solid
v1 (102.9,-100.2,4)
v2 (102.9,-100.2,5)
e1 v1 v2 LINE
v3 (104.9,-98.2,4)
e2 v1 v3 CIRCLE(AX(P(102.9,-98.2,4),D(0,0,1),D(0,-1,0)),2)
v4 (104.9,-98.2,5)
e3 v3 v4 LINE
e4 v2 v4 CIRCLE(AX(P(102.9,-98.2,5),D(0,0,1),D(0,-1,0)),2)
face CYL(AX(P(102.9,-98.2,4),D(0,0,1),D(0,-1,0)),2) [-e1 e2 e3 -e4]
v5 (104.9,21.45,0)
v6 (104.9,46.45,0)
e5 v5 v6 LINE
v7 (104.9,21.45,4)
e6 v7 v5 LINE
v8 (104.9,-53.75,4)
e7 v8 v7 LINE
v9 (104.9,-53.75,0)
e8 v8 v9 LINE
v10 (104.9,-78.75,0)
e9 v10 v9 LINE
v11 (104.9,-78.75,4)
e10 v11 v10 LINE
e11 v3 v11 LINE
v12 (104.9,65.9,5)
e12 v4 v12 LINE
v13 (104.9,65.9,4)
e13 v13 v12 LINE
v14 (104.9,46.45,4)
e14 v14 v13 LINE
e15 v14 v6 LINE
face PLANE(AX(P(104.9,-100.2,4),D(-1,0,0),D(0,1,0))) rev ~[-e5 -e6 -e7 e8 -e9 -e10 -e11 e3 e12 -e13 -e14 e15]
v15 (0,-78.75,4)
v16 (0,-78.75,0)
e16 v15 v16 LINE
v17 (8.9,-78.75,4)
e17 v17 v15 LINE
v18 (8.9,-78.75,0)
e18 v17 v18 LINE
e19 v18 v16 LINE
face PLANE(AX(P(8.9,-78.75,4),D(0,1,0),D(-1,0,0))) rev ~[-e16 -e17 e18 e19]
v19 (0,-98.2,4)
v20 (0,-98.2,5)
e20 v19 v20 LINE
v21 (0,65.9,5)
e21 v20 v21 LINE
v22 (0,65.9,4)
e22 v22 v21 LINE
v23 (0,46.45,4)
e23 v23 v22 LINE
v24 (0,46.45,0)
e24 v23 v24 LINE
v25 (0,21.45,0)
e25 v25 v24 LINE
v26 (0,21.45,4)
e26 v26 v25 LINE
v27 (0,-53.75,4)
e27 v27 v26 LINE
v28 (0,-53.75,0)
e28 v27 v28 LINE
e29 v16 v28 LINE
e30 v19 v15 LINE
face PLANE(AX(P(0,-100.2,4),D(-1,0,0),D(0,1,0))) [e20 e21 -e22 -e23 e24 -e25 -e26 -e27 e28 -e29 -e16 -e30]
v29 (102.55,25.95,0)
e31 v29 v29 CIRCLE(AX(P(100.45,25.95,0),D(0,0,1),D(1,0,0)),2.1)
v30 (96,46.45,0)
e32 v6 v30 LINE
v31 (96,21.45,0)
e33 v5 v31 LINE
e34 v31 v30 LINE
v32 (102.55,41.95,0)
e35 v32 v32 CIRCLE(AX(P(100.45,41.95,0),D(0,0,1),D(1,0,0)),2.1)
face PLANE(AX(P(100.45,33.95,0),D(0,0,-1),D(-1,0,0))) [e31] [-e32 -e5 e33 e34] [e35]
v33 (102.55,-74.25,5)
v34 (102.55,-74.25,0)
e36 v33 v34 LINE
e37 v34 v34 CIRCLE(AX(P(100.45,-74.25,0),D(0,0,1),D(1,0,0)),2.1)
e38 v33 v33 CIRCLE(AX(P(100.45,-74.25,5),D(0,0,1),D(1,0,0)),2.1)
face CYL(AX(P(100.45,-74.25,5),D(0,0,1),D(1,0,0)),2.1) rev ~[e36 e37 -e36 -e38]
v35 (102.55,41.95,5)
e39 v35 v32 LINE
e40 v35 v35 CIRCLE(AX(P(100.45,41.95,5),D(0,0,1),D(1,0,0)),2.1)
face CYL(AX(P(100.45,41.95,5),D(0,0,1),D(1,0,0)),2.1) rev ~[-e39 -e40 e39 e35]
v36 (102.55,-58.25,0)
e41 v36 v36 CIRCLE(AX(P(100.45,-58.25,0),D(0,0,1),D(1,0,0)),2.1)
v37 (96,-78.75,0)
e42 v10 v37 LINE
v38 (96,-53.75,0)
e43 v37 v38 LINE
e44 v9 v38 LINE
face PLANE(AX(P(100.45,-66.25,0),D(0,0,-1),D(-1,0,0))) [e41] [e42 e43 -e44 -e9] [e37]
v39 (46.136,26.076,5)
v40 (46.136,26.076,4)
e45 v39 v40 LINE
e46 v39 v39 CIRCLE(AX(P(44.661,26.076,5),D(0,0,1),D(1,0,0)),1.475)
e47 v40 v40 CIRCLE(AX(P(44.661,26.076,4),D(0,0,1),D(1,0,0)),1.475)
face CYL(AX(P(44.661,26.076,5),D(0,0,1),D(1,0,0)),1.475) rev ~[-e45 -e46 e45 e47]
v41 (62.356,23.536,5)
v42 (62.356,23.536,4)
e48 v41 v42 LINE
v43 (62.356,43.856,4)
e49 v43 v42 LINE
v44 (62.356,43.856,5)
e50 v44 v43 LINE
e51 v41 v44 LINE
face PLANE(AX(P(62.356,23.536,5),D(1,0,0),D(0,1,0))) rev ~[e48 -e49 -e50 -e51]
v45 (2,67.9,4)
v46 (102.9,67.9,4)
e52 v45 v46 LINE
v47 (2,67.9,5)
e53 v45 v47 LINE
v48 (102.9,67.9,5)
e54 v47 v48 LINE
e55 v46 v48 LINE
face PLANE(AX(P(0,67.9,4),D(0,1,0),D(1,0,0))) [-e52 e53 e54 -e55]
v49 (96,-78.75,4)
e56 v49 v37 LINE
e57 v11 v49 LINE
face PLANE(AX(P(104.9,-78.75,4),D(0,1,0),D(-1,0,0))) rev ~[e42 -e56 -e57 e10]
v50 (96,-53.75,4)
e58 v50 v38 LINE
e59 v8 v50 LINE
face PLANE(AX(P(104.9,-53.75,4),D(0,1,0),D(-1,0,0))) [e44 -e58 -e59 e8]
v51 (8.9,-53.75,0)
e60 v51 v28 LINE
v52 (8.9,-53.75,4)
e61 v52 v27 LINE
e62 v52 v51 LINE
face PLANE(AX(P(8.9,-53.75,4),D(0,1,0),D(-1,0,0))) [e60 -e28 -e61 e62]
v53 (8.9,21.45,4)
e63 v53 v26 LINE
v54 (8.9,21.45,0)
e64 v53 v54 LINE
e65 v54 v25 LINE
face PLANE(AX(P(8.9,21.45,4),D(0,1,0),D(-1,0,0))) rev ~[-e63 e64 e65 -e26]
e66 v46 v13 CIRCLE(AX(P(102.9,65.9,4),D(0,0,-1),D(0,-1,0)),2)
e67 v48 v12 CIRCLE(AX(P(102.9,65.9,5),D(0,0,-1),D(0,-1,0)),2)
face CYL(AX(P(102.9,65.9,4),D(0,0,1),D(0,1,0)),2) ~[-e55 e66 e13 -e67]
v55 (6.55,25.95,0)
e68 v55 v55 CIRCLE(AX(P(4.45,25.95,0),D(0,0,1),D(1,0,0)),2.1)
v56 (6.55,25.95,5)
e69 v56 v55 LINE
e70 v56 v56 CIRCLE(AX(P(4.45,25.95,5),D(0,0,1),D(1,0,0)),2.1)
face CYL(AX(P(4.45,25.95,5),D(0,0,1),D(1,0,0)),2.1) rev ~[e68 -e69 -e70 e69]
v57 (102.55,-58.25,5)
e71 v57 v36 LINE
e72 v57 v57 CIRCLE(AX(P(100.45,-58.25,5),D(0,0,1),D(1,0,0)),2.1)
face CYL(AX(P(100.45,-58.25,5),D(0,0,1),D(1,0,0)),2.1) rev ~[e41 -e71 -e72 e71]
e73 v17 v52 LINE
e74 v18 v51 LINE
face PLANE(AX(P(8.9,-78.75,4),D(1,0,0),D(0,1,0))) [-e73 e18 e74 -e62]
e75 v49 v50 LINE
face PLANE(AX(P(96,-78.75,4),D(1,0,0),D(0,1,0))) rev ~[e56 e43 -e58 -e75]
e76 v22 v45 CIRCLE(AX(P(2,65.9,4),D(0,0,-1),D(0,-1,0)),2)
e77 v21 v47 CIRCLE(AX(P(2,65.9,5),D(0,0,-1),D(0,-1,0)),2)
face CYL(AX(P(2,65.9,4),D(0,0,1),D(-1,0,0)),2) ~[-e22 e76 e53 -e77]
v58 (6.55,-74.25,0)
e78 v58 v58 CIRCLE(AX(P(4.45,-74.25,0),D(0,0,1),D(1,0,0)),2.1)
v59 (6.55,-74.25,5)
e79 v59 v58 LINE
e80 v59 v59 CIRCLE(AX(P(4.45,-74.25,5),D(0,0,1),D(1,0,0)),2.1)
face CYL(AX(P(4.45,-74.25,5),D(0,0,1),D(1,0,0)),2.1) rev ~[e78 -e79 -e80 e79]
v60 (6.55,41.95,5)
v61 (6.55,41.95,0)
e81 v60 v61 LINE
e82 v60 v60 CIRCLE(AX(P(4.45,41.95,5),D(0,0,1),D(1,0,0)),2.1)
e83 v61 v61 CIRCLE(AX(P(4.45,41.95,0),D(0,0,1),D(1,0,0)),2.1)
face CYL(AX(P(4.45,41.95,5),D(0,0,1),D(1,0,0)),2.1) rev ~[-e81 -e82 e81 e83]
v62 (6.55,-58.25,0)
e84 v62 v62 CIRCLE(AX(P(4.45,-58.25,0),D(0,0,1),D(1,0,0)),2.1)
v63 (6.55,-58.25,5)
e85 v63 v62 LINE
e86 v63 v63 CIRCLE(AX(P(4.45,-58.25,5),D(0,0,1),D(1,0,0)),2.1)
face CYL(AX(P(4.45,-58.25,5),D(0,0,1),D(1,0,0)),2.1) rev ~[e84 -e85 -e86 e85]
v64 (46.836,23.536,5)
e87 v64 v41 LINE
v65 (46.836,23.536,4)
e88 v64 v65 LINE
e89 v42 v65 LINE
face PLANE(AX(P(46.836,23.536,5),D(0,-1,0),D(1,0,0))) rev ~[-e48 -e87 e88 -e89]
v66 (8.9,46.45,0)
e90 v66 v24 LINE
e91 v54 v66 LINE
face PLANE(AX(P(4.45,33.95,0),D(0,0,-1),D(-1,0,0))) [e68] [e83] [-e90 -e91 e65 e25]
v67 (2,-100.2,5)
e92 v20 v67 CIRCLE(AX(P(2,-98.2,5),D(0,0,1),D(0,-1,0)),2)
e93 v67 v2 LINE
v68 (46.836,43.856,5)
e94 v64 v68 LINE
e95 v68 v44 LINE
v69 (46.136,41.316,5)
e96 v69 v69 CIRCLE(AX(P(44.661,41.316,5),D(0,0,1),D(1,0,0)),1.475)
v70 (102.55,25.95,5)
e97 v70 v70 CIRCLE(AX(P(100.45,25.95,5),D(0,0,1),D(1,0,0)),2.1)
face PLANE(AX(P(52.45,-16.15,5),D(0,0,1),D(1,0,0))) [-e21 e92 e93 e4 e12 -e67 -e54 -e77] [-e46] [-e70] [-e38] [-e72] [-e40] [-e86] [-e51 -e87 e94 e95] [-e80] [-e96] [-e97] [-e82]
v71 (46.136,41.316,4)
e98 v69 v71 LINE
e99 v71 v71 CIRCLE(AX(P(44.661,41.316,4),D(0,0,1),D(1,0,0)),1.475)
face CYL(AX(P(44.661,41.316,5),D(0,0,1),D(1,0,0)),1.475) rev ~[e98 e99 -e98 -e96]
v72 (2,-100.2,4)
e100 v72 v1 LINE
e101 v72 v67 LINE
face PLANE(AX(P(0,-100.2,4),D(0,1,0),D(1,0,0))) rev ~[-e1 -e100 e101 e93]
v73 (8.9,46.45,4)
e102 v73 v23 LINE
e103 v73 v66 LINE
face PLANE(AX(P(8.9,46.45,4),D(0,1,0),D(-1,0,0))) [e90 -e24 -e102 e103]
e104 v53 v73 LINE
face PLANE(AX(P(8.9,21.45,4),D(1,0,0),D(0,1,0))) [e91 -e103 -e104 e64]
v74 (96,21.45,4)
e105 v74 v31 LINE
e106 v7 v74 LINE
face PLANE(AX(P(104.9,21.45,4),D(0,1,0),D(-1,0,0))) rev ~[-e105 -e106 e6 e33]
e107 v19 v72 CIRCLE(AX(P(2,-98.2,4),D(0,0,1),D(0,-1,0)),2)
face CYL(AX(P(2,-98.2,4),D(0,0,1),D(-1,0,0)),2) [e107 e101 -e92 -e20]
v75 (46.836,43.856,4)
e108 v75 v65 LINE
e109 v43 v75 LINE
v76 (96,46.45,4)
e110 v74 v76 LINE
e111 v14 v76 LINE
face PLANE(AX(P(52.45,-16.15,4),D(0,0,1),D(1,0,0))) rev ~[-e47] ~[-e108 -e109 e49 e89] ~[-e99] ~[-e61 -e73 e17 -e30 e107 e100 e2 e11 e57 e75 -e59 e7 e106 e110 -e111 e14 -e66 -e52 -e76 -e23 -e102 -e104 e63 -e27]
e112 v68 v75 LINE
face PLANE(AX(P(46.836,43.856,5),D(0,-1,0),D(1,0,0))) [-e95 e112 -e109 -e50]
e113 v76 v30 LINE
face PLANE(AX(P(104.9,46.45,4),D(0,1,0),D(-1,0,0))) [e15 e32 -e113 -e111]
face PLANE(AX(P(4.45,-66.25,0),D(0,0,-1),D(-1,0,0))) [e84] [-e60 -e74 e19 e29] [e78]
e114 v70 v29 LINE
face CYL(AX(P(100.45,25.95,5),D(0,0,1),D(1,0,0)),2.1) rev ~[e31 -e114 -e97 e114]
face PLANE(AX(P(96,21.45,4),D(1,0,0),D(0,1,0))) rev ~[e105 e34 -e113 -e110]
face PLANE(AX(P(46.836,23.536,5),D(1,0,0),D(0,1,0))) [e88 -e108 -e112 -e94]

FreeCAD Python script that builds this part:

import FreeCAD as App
import Part
import Sketcher

V = App.Vector


def edges_at(feature, points):
    """Names of the edges that pass closest to the given points."""
    edges = feature.Shape.Edges
    near = lambda p: min(range(len(edges)), key=lambda i: edges[i].distToShape(Part.Vertex(*p))[0])
    return sorted({f"Edge{near(p) + 1}" for p in points})

doc = App.newDocument("Part")
body = doc.addObject("PartDesign::Body", "Body")

# Sketch on XY plane
sketch1 = doc.addObject("Sketcher::SketchObject", "Sketch")
body.addObject(sketch1)
sketch1.AttachmentSupport = (doc.XY_Plane, [""])
sketch1.MapMode = "FlatFace"
sketch1.AttachmentOffset = App.Placement(V(0, 0, 4), App.Rotation())
sketch1.addGeometry(Part.LineSegment(V(0, 68, 0), V(0, -100, 0)), False)
sketch1.addGeometry(Part.LineSegment(V(0, -100, 0), V(105, -100, 0)), False)
sketch1.addGeometry(Part.LineSegment(V(105, -100, 0), V(105, 68, 0)), False)
sketch1.addGeometry(Part.LineSegment(V(105, 68, 0), V(0, 68, 0)), False)
sketch1.addConstraint(Sketcher.Constraint("Coincident", 0, 2, 1, 1))
sketch1.addConstraint(Sketcher.Constraint("Coincident", 1, 2, 2, 1))
sketch1.addConstraint(Sketcher.Constraint("Coincident", 2, 2, 3, 1))
sketch1.addConstraint(Sketcher.Constraint("Coincident", 3, 2, 0, 1))
sketch1.addConstraint(Sketcher.Constraint("Vertical", 0))
sketch1.addConstraint(Sketcher.Constraint("Horizontal", 1))
sketch1.addConstraint(Sketcher.Constraint("Vertical", 2))
sketch1.addConstraint(Sketcher.Constraint("Horizontal", 3))
sketch1.addConstraint(Sketcher.Constraint("PointOnObject", 0, 2, -2))
sketch1.addConstraint(Sketcher.Constraint("DistanceX", 1, 1, 1, 2, 104.9))
sketch1.addConstraint(Sketcher.Constraint("DistanceY", 0, 2, 0, 1, 168.1))
sketch1.addConstraint(Sketcher.Constraint("DistanceY", 0, 2, -1, 1, 100.2))
pad1 = doc.addObject("PartDesign::Pad", "Pad")
body.addObject(pad1)
pad1.Profile = sketch1
pad1.Length = 1

# Sketch on XY plane
sketch2 = doc.addObject("Sketcher::SketchObject", "Sketch001")
body.addObject(sketch2)
sketch2.AttachmentSupport = (doc.XY_Plane, [""])
sketch2.MapMode = "FlatFace"
sketch2.AttachmentOffset = App.Placement(V(0, 0, 4), App.Rotation())
sketch2.addGeometry(Part.LineSegment(V(105, 46, 0), V(105, 21, 0)), False)
sketch2.addGeometry(Part.LineSegment(V(105, 21, 0), V(96, 21, 0)), False)
sketch2.addGeometry(Part.LineSegment(V(96, 21, 0), V(96, 46, 0)), False)
sketch2.addGeometry(Part.LineSegment(V(96, 46, 0), V(105, 46, 0)), False)
sketch2.addGeometry(Part.LineSegment(V(9, 46, 0), V(9, 21, 0)), False)
sketch2.addGeometry(Part.LineSegment(V(9, 21, 0), V(0, 21, 0)), False)
sketch2.addGeometry(Part.LineSegment(V(0, 21, 0), V(0, 46, 0)), False)
sketch2.addGeometry(Part.LineSegment(V(0, 46, 0), V(9, 46, 0)), False)
sketch2.addGeometry(Part.LineSegment(V(9, -54, 0), V(9, -79, 0)), False)
sketch2.addGeometry(Part.LineSegment(V(9, -79, 0), V(0, -79, 0)), False)
sketch2.addGeometry(Part.LineSegment(V(0, -79, 0), V(0, -54, 0)), False)
sketch2.addGeometry(Part.LineSegment(V(0, -54, 0), V(9, -54, 0)), False)
sketch2.addGeometry(Part.LineSegment(V(105, -54, 0), V(105, -79, 0)), False)
sketch2.addGeometry(Part.LineSegment(V(105, -79, 0), V(96, -79, 0)), False)
sketch2.addGeometry(Part.LineSegment(V(96, -79, 0), V(96, -54, 0)), False)
sketch2.addGeometry(Part.LineSegment(V(96, -54, 0), V(105, -54, 0)), False)
sketch2.addConstraint(Sketcher.Constraint("Coincident", 0, 2, 1, 1))
sketch2.addConstraint(Sketcher.Constraint("Coincident", 1, 2, 2, 1))
sketch2.addConstraint(Sketcher.Constraint("Coincident", 2, 2, 3, 1))
sketch2.addConstraint(Sketcher.Constraint("Coincident", 3, 2, 0, 1))
sketch2.addConstraint(Sketcher.Constraint("Coincident", 4, 2, 5, 1))
sketch2.addConstraint(Sketcher.Constraint("Coincident", 5, 2, 6, 1))
sketch2.addConstraint(Sketcher.Constraint("Coincident", 6, 2, 7, 1))
sketch2.addConstraint(Sketcher.Constraint("Coincident", 7, 2, 4, 1))
sketch2.addConstraint(Sketcher.Constraint("Coincident", 8, 2, 9, 1))
sketch2.addConstraint(Sketcher.Constraint("Coincident", 9, 2, 10, 1))
sketch2.addConstraint(Sketcher.Constraint("Coincident", 10, 2, 11, 1))
sketch2.addConstraint(Sketcher.Constraint("Coincident", 11, 2, 8, 1))
sketch2.addConstraint(Sketcher.Constraint("Coincident", 12, 2, 13, 1))
sketch2.addConstraint(Sketcher.Constraint("Coincident", 13, 2, 14, 1))
sketch2.addConstraint(Sketcher.Constraint("Coincident", 14, 2, 15, 1))
sketch2.addConstraint(Sketcher.Constraint("Coincident", 15, 2, 12, 1))
sketch2.addConstraint(Sketcher.Constraint("Vertical", 0))
sketch2.addConstraint(Sketcher.Constraint("Horizontal", 1))
sketch2.addConstraint(Sketcher.Constraint("Vertical", 2))
sketch2.addConstraint(Sketcher.Constraint("Horizontal", 3))
sketch2.addConstraint(Sketcher.Constraint("Vertical", 4))
sketch2.addConstraint(Sketcher.Constraint("Horizontal", 5))
sketch2.addConstraint(Sketcher.Constraint("Vertical", 6))
sketch2.addConstraint(Sketcher.Constraint("Horizontal", 7))
sketch2.addConstraint(Sketcher.Constraint("Vertical", 8))
sketch2.addConstraint(Sketcher.Constraint("Horizontal", 9))
sketch2.addConstraint(Sketcher.Constraint("Vertical", 10))
sketch2.addConstraint(Sketcher.Constraint("Horizontal", 11))
sketch2.addConstraint(Sketcher.Constraint("Vertical", 12))
sketch2.addConstraint(Sketcher.Constraint("Horizontal", 13))
sketch2.addConstraint(Sketcher.Constraint("Vertical", 14))
sketch2.addConstraint(Sketcher.Constraint("Horizontal", 15))
sketch2.addConstraint(Sketcher.Constraint("PointOnObject", 5, 2, -2))
sketch2.addConstraint(Sketcher.Constraint("PointOnObject", 9, 2, -2))
sketch2.addConstraint(Sketcher.Constraint("Horizontal", 1, 2, 4, 2))
sketch2.addConstraint(Sketcher.Constraint("Horizontal", 3, 2, 6, 2))
sketch2.addConstraint(Sketcher.Constraint("Horizontal", 9, 2, 12, 2))
sketch2.addConstraint(Sketcher.Constraint("Horizontal", 11, 2, 14, 2))
sketch2.addConstraint(Sketcher.Constraint("Vertical", 7, 2, 8, 2))
sketch2.addConstraint(Sketcher.Constraint("Vertical", 3, 2, 12, 2))
sketch2.addConstraint(Sketcher.Constraint("Vertical", 2, 2, 13, 2))
sketch2.addConstraint(Sketcher.Constraint("Equal", 3, 5))
sketch2.addConstraint(Sketcher.Constraint("Equal", 6, 8))
sketch2.addConstraint(Sketcher.Constraint("DistanceY", 0, 2, 0, 1, 25.0))
sketch2.addConstraint(Sketcher.Constraint("DistanceX", 1, 2, 1, 1, 8.9))
sketch2.addConstraint(Sketcher.Constraint("DistanceX", -1, 1, 1, 2, 96.0))
sketch2.addConstraint(Sketcher.Constraint("DistanceY", 8, 2, 4, 2, 100.2))
sketch2.addConstraint(Sketcher.Constraint("DistanceY", -1, 1, 0, 2, 21.45))
pad2 = doc.addObject("PartDesign::Pad", "Pad001")
body.addObject(pad2)
pad2.Profile = sketch2
pad2.Length = 4
pad2.Reversed = True

# Sketch on XY plane
sketch3 = doc.addObject("Sketcher::SketchObject", "Sketch002")
body.addObject(sketch3)
sketch3.AttachmentSupport = (doc.XY_Plane, [""])
sketch3.MapMode = "FlatFace"
sketch3.AttachmentOffset = App.Placement(V(0, 0, 5), App.Rotation())
sketch3.addGeometry(Part.Circle(V(100.5, -74.2, 0), V(0, 0, 1), 2.1), False)
sketch3.addGeometry(Part.Circle(V(100.5, -58.2, 0), V(0, 0, 1), 2.1), False)
sketch3.addGeometry(Part.Circle(V(4.5, -74.2, 0), V(0, 0, 1), 2.1), False)
sketch3.addGeometry(Part.Circle(V(4.5, -58.2, 0), V(0, 0, 1), 2.1), False)
sketch3.addGeometry(Part.Circle(V(4.5, 25.9, 0), V(0, 0, 1), 2.1), False)
sketch3.addGeometry(Part.Circle(V(4.5, 42, 0), V(0, 0, 1), 2.1), False)
sketch3.addGeometry(Part.Circle(V(100.5, 25.9, 0), V(0, 0, 1), 2.1), False)
sketch3.addGeometry(Part.Circle(V(100.5, 42, 0), V(0, 0, 1), 2.1), False)
sketch3.addConstraint(Sketcher.Constraint("Equal", 0, 1))
sketch3.addConstraint(Sketcher.Constraint("Equal", 1, 2))
sketch3.addConstraint(Sketcher.Constraint("Equal", 2, 3))
sketch3.addConstraint(Sketcher.Constraint("Equal", 3, 4))
sketch3.addConstraint(Sketcher.Constraint("Equal", 4, 5))
sketch3.addConstraint(Sketcher.Constraint("Equal", 5, 6))
sketch3.addConstraint(Sketcher.Constraint("Equal", 6, 7))
sketch3.addConstraint(Sketcher.Constraint("Horizontal", 0, 3, 2, 3))
sketch3.addConstraint(Sketcher.Constraint("Horizontal", 1, 3, 3, 3))
sketch3.addConstraint(Sketcher.Constraint("Horizontal", 4, 3, 6, 3))
sketch3.addConstraint(Sketcher.Constraint("Horizontal", 5, 3, 7, 3))
sketch3.addConstraint(Sketcher.Constraint("Vertical", 0, 3, 1, 3))
sketch3.addConstraint(Sketcher.Constraint("Vertical", 2, 3, 3, 3))
sketch3.addConstraint(Sketcher.Constraint("Vertical", 3, 3, 4, 3))
sketch3.addConstraint(Sketcher.Constraint("Vertical", 4, 3, 5, 3))
sketch3.addConstraint(Sketcher.Constraint("Vertical", 1, 3, 6, 3))
sketch3.addConstraint(Sketcher.Constraint("Vertical", 6, 3, 7, 3))
sketch3.addConstraint(Sketcher.Constraint("Diameter", 0, 4.2))
sketch3.addConstraint(Sketcher.Constraint("DistanceY", 0, 3, 1, 3, 16.0))
sketch3.addConstraint(Sketcher.Constraint("DistanceX", 2, 3, 0, 3, 96.0))
sketch3.addConstraint(Sketcher.Constraint("DistanceY", 4, 3, 5, 3, 16.0))
sketch3.addConstraint(Sketcher.Constraint("DistanceY", 3, 3, 4, 3, 84.2))
sketch3.addConstraint(Sketcher.Constraint("DistanceX", -1, 1, 0, 3, 100.45))
sketch3.addConstraint(Sketcher.Constraint("DistanceY", 0, 3, -1, 1, 74.25))
pocket1 = doc.addObject("PartDesign::Pocket", "Pocket")
body.addObject(pocket1)
pocket1.Profile = sketch3
pocket1.Type = "ThroughAll"

# Sketch on XY plane
sketch4 = doc.addObject("Sketcher::SketchObject", "Sketch003")
body.addObject(sketch4)
sketch4.AttachmentSupport = (doc.XY_Plane, [""])
sketch4.MapMode = "FlatFace"
sketch4.AttachmentOffset = App.Placement(V(0, 0, 5), App.Rotation())
sketch4.addGeometry(Part.Circle(V(44.7, 26.1, 0), V(0, 0, 1), 1.5), False)
sketch4.addConstraint(Sketcher.Constraint("Diameter", 0, 2.95))
sketch4.addConstraint(Sketcher.Constraint("DistanceX", -1, 1, 0, 3, 44.661))
sketch4.addConstraint(Sketcher.Constraint("DistanceY", -1, 1, 0, 3, 26.076))
pocket2 = doc.addObject("PartDesign::Pocket", "Pocket001")
body.addObject(pocket2)
pocket2.Profile = sketch4
pocket2.Type = "UpToFirst"

# Sketch on XY plane
sketch5 = doc.addObject("Sketcher::SketchObject", "Sketch004")
body.addObject(sketch5)
sketch5.AttachmentSupport = (doc.XY_Plane, [""])
sketch5.MapMode = "FlatFace"
sketch5.AttachmentOffset = App.Placement(V(0, 0, 5), App.Rotation())
sketch5.addGeometry(Part.Circle(V(44.7, 41.3, 0), V(0, 0, 1), 1.5), False)
sketch5.addConstraint(Sketcher.Constraint("Diameter", 0, 2.95))
sketch5.addConstraint(Sketcher.Constraint("DistanceX", -1, 1, 0, 3, 44.661))
sketch5.addConstraint(Sketcher.Constraint("DistanceY", -1, 1, 0, 3, 41.316))
pocket3 = doc.addObject("PartDesign::Pocket", "Pocket002")
body.addObject(pocket3)
pocket3.Profile = sketch5
pocket3.Type = "UpToFirst"

# Sketch on XY plane
sketch6 = doc.addObject("Sketcher::SketchObject", "Sketch005")
body.addObject(sketch6)
sketch6.AttachmentSupport = (doc.XY_Plane, [""])
sketch6.MapMode = "FlatFace"
sketch6.AttachmentOffset = App.Placement(V(0, 0, 5), App.Rotation())
sketch6.addGeometry(Part.LineSegment(V(47, 44, 0), V(47, 24, 0)), False)
sketch6.addGeometry(Part.LineSegment(V(47, 24, 0), V(62, 24, 0)), False)
sketch6.addGeometry(Part.LineSegment(V(62, 24, 0), V(62, 44, 0)), False)
sketch6.addGeometry(Part.LineSegment(V(62, 44, 0), V(47, 44, 0)), False)
sketch6.addConstraint(Sketcher.Constraint("Coincident", 0, 2, 1, 1))
sketch6.addConstraint(Sketcher.Constraint("Coincident", 1, 2, 2, 1))
sketch6.addConstraint(Sketcher.Constraint("Coincident", 2, 2, 3, 1))
sketch6.addConstraint(Sketcher.Constraint("Coincident", 3, 2, 0, 1))
sketch6.addConstraint(Sketcher.Constraint("Vertical", 0))
sketch6.addConstraint(Sketcher.Constraint("Horizontal", 1))
sketch6.addConstraint(Sketcher.Constraint("Vertical", 2))
sketch6.addConstraint(Sketcher.Constraint("Horizontal", 3))
sketch6.addConstraint(Sketcher.Constraint("DistanceX", 1, 1, 1, 2, 15.52))
sketch6.addConstraint(Sketcher.Constraint("DistanceY", 0, 2, 0, 1, 20.32))
sketch6.addConstraint(Sketcher.Constraint("DistanceX", -1, 1, 0, 2, 46.836))
sketch6.addConstraint(Sketcher.Constraint("DistanceY", -1, 1, 0, 2, 23.536))
pocket4 = doc.addObject("PartDesign::Pocket", "Pocket003")
body.addObject(pocket4)
pocket4.Profile = sketch6
pocket4.Type = "UpToFirst"
doc.recompute()

fillet = doc.addObject("PartDesign::Fillet", "Fillet")
body.addObject(fillet)
fillet.Base = (pocket4, edges_at(pocket4, [
    (0, 67.9, 4.5),
    (104.9, 67.9, 4.5),
    (104.9, -100.2, 4.5),
    (0, -100.2, 4.5),
]))
fillet.Radius = 2

doc.recompute()
